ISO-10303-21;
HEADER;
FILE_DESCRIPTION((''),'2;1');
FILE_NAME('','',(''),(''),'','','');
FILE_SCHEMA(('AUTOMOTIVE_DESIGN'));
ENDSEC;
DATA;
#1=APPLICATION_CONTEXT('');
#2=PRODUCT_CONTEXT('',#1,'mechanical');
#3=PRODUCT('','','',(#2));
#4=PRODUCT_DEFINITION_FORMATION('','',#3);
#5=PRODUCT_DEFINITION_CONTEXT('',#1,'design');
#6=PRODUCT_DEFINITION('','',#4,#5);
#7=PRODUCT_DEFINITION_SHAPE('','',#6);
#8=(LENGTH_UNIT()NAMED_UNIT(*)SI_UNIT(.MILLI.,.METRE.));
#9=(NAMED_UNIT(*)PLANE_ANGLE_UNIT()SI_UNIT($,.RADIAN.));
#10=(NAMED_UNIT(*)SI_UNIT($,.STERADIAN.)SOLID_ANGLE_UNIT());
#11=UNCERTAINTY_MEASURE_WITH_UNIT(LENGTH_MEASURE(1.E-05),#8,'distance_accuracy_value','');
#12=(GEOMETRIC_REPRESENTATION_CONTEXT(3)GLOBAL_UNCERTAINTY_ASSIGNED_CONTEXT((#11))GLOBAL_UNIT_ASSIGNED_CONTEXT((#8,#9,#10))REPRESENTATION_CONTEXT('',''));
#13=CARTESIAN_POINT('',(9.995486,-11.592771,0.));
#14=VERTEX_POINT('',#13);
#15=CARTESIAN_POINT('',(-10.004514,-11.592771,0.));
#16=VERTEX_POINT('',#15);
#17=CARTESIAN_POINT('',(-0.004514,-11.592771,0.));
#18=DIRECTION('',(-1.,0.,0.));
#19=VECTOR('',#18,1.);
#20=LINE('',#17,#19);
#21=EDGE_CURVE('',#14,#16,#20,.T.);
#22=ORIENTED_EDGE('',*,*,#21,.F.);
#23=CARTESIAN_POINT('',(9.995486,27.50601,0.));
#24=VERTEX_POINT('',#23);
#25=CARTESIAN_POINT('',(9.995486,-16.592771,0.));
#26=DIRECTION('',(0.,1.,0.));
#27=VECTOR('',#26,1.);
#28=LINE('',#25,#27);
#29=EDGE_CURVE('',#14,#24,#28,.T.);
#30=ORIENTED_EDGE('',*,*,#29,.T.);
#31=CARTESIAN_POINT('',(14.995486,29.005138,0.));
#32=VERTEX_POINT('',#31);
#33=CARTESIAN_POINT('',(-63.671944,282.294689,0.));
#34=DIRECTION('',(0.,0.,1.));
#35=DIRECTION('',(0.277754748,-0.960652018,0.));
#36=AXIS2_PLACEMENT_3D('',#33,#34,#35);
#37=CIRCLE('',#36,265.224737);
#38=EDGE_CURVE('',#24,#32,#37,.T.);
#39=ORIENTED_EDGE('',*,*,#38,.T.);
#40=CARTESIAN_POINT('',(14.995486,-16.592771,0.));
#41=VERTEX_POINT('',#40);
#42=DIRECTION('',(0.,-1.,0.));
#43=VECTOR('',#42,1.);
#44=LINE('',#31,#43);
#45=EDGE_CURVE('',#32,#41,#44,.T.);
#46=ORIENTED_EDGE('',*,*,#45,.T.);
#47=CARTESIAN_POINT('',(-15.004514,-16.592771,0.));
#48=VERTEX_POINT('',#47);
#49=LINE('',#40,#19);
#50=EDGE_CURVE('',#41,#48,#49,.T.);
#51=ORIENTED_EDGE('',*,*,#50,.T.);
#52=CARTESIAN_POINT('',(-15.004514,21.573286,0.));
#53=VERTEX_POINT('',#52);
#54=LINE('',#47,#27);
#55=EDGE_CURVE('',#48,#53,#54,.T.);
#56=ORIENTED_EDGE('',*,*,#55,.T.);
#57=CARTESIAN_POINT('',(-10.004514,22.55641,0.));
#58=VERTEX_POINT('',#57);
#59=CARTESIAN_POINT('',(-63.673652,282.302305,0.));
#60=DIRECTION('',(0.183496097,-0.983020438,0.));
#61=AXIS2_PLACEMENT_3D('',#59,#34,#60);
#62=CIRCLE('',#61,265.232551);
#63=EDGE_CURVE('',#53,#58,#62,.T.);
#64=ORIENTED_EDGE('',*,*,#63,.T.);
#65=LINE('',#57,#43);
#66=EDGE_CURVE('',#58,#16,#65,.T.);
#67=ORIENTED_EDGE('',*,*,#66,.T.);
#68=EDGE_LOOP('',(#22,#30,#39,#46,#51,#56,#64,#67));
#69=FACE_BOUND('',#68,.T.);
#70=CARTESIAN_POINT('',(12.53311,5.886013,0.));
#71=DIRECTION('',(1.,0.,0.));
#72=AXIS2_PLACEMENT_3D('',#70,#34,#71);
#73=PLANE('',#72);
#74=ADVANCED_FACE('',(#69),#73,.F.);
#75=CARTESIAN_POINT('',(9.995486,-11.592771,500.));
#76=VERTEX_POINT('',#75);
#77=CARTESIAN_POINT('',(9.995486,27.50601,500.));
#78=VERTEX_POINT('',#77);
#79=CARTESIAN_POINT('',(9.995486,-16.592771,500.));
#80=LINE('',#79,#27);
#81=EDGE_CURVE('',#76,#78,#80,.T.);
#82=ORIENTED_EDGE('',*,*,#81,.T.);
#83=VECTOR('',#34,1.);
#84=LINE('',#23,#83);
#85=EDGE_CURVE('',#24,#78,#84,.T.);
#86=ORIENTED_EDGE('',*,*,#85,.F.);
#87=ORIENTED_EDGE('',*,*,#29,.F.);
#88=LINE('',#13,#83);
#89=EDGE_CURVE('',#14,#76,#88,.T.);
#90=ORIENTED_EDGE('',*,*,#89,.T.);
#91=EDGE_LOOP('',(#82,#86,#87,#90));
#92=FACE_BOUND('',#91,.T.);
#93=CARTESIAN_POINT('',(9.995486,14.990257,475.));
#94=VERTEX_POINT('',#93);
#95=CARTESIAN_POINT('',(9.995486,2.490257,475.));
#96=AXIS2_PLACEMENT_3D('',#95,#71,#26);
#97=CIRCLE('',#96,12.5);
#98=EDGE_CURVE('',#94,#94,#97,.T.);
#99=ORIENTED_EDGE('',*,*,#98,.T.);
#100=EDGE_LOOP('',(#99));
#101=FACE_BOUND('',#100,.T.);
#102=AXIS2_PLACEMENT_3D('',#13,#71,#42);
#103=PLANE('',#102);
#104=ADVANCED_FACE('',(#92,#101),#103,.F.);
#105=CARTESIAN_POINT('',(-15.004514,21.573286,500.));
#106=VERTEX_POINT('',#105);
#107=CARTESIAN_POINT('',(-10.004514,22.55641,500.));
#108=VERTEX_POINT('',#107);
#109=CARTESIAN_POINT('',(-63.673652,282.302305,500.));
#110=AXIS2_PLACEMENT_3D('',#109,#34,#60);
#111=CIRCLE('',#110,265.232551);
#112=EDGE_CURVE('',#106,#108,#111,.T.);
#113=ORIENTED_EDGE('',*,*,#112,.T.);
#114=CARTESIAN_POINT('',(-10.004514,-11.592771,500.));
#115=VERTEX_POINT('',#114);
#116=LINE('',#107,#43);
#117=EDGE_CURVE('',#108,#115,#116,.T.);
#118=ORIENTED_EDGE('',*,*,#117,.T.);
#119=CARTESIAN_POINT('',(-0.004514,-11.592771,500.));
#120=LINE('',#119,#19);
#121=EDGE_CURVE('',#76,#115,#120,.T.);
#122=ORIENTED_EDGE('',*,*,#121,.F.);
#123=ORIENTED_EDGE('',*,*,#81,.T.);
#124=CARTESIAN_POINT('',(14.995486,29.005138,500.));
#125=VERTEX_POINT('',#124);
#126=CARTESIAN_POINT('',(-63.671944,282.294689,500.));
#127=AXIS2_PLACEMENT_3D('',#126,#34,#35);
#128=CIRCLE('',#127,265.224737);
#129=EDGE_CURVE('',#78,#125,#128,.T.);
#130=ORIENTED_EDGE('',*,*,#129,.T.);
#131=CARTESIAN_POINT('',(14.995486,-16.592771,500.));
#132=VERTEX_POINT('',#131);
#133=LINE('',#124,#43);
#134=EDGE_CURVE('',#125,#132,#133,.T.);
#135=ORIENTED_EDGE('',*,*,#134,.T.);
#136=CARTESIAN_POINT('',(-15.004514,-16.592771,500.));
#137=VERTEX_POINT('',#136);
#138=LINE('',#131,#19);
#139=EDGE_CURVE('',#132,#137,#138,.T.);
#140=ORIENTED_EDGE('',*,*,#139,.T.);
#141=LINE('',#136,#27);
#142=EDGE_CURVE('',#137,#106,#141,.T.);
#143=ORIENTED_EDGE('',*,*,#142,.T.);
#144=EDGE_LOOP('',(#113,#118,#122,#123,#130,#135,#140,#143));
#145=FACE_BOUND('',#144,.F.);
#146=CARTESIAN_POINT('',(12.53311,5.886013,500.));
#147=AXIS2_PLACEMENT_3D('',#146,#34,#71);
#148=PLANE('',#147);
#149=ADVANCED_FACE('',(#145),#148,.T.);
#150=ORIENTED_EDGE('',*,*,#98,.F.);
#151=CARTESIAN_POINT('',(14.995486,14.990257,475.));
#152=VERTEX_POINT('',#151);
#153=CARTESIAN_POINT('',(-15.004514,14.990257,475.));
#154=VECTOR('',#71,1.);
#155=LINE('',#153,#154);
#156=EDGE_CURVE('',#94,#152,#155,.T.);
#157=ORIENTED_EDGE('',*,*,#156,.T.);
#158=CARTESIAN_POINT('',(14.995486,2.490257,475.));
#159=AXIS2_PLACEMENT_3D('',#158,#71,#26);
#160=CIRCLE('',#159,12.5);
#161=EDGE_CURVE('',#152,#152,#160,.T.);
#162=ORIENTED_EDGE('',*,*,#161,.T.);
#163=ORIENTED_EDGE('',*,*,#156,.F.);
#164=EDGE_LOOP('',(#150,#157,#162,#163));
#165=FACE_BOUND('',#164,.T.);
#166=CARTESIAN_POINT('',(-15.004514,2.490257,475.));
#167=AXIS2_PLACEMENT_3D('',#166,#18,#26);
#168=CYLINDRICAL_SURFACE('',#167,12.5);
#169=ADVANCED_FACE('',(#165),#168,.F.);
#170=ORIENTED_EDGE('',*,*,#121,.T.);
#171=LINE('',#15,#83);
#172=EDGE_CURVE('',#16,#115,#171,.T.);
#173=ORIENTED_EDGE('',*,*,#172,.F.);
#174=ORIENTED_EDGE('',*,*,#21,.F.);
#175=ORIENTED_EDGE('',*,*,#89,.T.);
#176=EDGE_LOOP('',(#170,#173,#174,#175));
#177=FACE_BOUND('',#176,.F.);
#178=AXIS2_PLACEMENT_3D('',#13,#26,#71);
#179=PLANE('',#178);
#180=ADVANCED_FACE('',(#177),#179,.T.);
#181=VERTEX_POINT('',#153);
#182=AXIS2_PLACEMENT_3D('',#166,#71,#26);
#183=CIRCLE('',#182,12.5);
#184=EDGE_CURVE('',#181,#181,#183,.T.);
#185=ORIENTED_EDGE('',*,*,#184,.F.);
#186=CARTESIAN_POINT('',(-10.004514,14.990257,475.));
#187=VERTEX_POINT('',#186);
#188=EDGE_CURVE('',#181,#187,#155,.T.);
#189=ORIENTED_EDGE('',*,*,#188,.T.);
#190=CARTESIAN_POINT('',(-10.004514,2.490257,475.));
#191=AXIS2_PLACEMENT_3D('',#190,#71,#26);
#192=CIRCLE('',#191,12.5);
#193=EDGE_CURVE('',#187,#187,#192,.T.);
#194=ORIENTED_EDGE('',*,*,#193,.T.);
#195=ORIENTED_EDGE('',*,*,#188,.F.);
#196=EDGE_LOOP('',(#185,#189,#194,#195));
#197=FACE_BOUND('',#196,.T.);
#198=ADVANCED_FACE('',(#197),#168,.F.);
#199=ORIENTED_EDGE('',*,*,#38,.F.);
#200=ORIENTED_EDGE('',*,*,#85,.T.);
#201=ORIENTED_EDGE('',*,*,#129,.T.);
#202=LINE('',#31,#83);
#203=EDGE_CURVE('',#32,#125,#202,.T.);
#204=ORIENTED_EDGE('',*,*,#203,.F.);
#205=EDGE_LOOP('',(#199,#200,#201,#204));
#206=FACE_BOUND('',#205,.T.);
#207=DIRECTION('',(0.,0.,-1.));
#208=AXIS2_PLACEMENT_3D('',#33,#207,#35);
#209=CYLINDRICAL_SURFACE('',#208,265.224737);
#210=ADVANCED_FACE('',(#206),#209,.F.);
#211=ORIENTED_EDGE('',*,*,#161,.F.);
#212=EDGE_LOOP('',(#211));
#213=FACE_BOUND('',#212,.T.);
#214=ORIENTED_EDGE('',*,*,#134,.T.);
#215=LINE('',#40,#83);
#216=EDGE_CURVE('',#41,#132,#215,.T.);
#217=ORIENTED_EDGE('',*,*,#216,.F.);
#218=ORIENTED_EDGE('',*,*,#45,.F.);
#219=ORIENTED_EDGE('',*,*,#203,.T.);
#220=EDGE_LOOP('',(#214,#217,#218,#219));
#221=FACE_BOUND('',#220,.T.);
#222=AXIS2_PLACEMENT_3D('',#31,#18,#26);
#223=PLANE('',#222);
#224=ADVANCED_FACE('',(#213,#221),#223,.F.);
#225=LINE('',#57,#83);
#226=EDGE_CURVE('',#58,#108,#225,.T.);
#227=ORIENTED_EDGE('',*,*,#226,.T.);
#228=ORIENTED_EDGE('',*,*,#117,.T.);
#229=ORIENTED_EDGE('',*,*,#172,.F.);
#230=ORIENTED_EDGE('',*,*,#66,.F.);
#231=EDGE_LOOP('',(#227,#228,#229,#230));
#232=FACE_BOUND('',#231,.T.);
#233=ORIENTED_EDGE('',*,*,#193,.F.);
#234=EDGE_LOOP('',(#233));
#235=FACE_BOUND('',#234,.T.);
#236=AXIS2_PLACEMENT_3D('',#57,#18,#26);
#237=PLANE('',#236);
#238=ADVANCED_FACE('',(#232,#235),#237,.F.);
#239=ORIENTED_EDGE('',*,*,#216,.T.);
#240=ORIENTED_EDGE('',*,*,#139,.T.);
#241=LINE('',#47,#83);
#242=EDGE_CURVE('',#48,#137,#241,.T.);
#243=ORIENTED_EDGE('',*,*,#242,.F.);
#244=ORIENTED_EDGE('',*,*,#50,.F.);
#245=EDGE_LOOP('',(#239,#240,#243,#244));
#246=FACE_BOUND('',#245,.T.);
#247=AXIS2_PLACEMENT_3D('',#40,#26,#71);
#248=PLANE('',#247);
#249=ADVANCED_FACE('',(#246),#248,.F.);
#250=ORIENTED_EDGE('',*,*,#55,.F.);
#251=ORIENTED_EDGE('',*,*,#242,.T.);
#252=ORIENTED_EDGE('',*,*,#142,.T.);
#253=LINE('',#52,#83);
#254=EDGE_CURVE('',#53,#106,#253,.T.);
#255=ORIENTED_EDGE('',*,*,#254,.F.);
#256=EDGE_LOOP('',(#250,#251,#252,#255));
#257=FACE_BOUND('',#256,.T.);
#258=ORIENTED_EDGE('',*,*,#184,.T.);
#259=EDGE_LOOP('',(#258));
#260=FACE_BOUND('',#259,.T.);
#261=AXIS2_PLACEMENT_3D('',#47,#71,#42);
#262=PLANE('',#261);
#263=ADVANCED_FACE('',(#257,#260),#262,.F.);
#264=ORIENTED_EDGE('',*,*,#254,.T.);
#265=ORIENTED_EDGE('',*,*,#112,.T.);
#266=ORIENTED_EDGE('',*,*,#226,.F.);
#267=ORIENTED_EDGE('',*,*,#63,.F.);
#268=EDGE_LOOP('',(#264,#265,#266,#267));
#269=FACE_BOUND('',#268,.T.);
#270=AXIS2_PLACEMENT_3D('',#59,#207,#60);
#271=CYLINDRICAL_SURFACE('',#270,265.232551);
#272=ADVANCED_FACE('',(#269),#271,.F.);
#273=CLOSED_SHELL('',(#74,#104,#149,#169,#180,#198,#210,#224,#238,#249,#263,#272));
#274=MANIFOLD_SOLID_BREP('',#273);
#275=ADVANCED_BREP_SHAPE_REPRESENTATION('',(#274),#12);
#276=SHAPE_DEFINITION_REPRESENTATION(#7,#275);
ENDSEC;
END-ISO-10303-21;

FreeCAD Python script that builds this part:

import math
import FreeCAD as App
import Part
import Sketcher

V = App.Vector
Q = App.Units.Quantity

doc = App.newDocument("Part")
body = doc.addObject("PartDesign::Body", "Body")

# Sketch on XY plane
sketch1 = body.newObject("Sketcher::SketchObject", "Sketch")
sketch1.AttachmentSupport = (doc.getObject("XY_Plane"), [""])
sketch1.MapMode = "FlatFace"
sketch1.addGeometry([
    Part.ArcOfCircle(Part.Circle(V(63.671944, 282.294689, 0), V(0, 0, 1), 265.224737), math.radians(-107.253906), math.radians(-106.126247)),  # 0
    Part.LineSegment(V(-14.995486, 29.005138, 0), V(-14.995486, -16.592771, 0)),  # 1
    Part.LineSegment(V(-14.995486, -16.592771, 0), V(15.004514, -16.592771, 0)),  # 2
    Part.LineSegment(V(15.004514, -16.592771, 0), V(15.004514, 21.573286, 0)),  # 3
    Part.ArcOfCircle(Part.Circle(V(63.673652, 282.302305, 0), V(0, 0, 1), 265.232551), math.radians(-101.674267), math.radians(-100.573464)),  # 4
    Part.LineSegment(V(10.004514, 22.55641, 0), V(10.004514, -11.592771, 0)),  # 5
    Part.LineSegment(V(10.004514, -11.592771, 0), V(-9.995486, -11.592771, 0)),  # 6
    Part.LineSegment(V(-9.995486, -11.592771, 0), V(-9.995486, 27.50601, 0)),  # 7
], False)
sketch1.addConstraint([
    Sketcher.Constraint("Coincident", 0, 1, 1, 1),
    Sketcher.Constraint("Coincident", 1, 2, 2, 1),
    Sketcher.Constraint("Coincident", 2, 2, 3, 1),
    Sketcher.Constraint("Coincident", 3, 2, 4, 2),
    Sketcher.Constraint("Coincident", 4, 1, 5, 1),
    Sketcher.Constraint("Coincident", 5, 2, 6, 1),
    Sketcher.Constraint("Coincident", 6, 2, 7, 1),
    Sketcher.Constraint("Coincident", 7, 2, 0, 2),
    Sketcher.Constraint("Vertical", 1),
    Sketcher.Constraint("Horizontal", 2),
    Sketcher.Constraint("Vertical", 3),
    Sketcher.Constraint("Vertical", 5),
    Sketcher.Constraint("Horizontal", 6),
    Sketcher.Constraint("Vertical", 7),
    Sketcher.Constraint("DistanceX", 2, 1, 2, 2, Q("30 mm")),
    Sketcher.Constraint("DistanceX", 6, 2, 6, 1, Q("20 mm")),
    Sketcher.Constraint("DistanceX", 4, 1, 3, 2, Q("5 mm")),
    Sketcher.Constraint("DistanceY", 2, 2, 5, 2, Q("5 mm")),
    Sketcher.Constraint("Radius", 4, Q("265.232551 mm")),
    Sketcher.Constraint("Radius", 0, Q("265.224737 mm")),
    Sketcher.Constraint("DistanceY", 1, 2, 1, 1, Q("45.597909 mm")),
    Sketcher.Constraint("DistanceY", 5, 2, 5, 1, Q("34.149181 mm")),
    Sketcher.Constraint("DistanceY", 7, 1, 7, 2, Q("39.098781 mm")),
    Sketcher.Constraint("DistanceY", 3, 1, 3, 2, Q("38.166057 mm")),
    Sketcher.Constraint("DistanceY", -1, 1, 0, 3, Q("282.294689 mm")),
    Sketcher.Constraint("DistanceX", -1, 1, 4, 3, Q("63.673652 mm")),
])
pad1 = body.newObject("PartDesign::Pad", "Pad")
pad1.Profile = sketch1
pad1.Length = 500

# Sketch on YZ plane
sketch2 = body.newObject("Sketcher::SketchObject", "Sketch001")
sketch2.AttachmentSupport = (doc.getObject("YZ_Plane"), [""])
sketch2.MapMode = "FlatFace"
sketch2.AttachmentOffset = App.Placement(V(0, 0, 15.004514), App.Rotation())
sketch2.addGeometry(Part.Circle(V(2.490257, 475, 0), V(0, 0, 1), 12.5), False)
sketch2.addConstraint([
    Sketcher.Constraint("Diameter", 0, Q("25 mm")),
    Sketcher.Constraint("DistanceY", -1, 1, 0, 3, Q("475 mm")),
    Sketcher.Constraint("DistanceX", -1, 1, 0, 3, Q("2.490257 mm")),
])
pocket1 = body.newObject("PartDesign::Pocket", "Pocket")
pocket1.Profile = sketch2
pocket1.Length = 50
body2 = doc.addObject("PartDesign::Body", "Body001")
doc.recompute()

mirroring = doc.addObject("Part::Mirroring", "Mirroring")
mirroring.Source = body
mirroring.Base = V(0, 0, 0)
mirroring.Normal = V(1, 0, 0)
body2.BaseFeature = mirroring
doc.recompute()
body.Visibility = False
mirroring.Visibility = False

doc.recompute()
